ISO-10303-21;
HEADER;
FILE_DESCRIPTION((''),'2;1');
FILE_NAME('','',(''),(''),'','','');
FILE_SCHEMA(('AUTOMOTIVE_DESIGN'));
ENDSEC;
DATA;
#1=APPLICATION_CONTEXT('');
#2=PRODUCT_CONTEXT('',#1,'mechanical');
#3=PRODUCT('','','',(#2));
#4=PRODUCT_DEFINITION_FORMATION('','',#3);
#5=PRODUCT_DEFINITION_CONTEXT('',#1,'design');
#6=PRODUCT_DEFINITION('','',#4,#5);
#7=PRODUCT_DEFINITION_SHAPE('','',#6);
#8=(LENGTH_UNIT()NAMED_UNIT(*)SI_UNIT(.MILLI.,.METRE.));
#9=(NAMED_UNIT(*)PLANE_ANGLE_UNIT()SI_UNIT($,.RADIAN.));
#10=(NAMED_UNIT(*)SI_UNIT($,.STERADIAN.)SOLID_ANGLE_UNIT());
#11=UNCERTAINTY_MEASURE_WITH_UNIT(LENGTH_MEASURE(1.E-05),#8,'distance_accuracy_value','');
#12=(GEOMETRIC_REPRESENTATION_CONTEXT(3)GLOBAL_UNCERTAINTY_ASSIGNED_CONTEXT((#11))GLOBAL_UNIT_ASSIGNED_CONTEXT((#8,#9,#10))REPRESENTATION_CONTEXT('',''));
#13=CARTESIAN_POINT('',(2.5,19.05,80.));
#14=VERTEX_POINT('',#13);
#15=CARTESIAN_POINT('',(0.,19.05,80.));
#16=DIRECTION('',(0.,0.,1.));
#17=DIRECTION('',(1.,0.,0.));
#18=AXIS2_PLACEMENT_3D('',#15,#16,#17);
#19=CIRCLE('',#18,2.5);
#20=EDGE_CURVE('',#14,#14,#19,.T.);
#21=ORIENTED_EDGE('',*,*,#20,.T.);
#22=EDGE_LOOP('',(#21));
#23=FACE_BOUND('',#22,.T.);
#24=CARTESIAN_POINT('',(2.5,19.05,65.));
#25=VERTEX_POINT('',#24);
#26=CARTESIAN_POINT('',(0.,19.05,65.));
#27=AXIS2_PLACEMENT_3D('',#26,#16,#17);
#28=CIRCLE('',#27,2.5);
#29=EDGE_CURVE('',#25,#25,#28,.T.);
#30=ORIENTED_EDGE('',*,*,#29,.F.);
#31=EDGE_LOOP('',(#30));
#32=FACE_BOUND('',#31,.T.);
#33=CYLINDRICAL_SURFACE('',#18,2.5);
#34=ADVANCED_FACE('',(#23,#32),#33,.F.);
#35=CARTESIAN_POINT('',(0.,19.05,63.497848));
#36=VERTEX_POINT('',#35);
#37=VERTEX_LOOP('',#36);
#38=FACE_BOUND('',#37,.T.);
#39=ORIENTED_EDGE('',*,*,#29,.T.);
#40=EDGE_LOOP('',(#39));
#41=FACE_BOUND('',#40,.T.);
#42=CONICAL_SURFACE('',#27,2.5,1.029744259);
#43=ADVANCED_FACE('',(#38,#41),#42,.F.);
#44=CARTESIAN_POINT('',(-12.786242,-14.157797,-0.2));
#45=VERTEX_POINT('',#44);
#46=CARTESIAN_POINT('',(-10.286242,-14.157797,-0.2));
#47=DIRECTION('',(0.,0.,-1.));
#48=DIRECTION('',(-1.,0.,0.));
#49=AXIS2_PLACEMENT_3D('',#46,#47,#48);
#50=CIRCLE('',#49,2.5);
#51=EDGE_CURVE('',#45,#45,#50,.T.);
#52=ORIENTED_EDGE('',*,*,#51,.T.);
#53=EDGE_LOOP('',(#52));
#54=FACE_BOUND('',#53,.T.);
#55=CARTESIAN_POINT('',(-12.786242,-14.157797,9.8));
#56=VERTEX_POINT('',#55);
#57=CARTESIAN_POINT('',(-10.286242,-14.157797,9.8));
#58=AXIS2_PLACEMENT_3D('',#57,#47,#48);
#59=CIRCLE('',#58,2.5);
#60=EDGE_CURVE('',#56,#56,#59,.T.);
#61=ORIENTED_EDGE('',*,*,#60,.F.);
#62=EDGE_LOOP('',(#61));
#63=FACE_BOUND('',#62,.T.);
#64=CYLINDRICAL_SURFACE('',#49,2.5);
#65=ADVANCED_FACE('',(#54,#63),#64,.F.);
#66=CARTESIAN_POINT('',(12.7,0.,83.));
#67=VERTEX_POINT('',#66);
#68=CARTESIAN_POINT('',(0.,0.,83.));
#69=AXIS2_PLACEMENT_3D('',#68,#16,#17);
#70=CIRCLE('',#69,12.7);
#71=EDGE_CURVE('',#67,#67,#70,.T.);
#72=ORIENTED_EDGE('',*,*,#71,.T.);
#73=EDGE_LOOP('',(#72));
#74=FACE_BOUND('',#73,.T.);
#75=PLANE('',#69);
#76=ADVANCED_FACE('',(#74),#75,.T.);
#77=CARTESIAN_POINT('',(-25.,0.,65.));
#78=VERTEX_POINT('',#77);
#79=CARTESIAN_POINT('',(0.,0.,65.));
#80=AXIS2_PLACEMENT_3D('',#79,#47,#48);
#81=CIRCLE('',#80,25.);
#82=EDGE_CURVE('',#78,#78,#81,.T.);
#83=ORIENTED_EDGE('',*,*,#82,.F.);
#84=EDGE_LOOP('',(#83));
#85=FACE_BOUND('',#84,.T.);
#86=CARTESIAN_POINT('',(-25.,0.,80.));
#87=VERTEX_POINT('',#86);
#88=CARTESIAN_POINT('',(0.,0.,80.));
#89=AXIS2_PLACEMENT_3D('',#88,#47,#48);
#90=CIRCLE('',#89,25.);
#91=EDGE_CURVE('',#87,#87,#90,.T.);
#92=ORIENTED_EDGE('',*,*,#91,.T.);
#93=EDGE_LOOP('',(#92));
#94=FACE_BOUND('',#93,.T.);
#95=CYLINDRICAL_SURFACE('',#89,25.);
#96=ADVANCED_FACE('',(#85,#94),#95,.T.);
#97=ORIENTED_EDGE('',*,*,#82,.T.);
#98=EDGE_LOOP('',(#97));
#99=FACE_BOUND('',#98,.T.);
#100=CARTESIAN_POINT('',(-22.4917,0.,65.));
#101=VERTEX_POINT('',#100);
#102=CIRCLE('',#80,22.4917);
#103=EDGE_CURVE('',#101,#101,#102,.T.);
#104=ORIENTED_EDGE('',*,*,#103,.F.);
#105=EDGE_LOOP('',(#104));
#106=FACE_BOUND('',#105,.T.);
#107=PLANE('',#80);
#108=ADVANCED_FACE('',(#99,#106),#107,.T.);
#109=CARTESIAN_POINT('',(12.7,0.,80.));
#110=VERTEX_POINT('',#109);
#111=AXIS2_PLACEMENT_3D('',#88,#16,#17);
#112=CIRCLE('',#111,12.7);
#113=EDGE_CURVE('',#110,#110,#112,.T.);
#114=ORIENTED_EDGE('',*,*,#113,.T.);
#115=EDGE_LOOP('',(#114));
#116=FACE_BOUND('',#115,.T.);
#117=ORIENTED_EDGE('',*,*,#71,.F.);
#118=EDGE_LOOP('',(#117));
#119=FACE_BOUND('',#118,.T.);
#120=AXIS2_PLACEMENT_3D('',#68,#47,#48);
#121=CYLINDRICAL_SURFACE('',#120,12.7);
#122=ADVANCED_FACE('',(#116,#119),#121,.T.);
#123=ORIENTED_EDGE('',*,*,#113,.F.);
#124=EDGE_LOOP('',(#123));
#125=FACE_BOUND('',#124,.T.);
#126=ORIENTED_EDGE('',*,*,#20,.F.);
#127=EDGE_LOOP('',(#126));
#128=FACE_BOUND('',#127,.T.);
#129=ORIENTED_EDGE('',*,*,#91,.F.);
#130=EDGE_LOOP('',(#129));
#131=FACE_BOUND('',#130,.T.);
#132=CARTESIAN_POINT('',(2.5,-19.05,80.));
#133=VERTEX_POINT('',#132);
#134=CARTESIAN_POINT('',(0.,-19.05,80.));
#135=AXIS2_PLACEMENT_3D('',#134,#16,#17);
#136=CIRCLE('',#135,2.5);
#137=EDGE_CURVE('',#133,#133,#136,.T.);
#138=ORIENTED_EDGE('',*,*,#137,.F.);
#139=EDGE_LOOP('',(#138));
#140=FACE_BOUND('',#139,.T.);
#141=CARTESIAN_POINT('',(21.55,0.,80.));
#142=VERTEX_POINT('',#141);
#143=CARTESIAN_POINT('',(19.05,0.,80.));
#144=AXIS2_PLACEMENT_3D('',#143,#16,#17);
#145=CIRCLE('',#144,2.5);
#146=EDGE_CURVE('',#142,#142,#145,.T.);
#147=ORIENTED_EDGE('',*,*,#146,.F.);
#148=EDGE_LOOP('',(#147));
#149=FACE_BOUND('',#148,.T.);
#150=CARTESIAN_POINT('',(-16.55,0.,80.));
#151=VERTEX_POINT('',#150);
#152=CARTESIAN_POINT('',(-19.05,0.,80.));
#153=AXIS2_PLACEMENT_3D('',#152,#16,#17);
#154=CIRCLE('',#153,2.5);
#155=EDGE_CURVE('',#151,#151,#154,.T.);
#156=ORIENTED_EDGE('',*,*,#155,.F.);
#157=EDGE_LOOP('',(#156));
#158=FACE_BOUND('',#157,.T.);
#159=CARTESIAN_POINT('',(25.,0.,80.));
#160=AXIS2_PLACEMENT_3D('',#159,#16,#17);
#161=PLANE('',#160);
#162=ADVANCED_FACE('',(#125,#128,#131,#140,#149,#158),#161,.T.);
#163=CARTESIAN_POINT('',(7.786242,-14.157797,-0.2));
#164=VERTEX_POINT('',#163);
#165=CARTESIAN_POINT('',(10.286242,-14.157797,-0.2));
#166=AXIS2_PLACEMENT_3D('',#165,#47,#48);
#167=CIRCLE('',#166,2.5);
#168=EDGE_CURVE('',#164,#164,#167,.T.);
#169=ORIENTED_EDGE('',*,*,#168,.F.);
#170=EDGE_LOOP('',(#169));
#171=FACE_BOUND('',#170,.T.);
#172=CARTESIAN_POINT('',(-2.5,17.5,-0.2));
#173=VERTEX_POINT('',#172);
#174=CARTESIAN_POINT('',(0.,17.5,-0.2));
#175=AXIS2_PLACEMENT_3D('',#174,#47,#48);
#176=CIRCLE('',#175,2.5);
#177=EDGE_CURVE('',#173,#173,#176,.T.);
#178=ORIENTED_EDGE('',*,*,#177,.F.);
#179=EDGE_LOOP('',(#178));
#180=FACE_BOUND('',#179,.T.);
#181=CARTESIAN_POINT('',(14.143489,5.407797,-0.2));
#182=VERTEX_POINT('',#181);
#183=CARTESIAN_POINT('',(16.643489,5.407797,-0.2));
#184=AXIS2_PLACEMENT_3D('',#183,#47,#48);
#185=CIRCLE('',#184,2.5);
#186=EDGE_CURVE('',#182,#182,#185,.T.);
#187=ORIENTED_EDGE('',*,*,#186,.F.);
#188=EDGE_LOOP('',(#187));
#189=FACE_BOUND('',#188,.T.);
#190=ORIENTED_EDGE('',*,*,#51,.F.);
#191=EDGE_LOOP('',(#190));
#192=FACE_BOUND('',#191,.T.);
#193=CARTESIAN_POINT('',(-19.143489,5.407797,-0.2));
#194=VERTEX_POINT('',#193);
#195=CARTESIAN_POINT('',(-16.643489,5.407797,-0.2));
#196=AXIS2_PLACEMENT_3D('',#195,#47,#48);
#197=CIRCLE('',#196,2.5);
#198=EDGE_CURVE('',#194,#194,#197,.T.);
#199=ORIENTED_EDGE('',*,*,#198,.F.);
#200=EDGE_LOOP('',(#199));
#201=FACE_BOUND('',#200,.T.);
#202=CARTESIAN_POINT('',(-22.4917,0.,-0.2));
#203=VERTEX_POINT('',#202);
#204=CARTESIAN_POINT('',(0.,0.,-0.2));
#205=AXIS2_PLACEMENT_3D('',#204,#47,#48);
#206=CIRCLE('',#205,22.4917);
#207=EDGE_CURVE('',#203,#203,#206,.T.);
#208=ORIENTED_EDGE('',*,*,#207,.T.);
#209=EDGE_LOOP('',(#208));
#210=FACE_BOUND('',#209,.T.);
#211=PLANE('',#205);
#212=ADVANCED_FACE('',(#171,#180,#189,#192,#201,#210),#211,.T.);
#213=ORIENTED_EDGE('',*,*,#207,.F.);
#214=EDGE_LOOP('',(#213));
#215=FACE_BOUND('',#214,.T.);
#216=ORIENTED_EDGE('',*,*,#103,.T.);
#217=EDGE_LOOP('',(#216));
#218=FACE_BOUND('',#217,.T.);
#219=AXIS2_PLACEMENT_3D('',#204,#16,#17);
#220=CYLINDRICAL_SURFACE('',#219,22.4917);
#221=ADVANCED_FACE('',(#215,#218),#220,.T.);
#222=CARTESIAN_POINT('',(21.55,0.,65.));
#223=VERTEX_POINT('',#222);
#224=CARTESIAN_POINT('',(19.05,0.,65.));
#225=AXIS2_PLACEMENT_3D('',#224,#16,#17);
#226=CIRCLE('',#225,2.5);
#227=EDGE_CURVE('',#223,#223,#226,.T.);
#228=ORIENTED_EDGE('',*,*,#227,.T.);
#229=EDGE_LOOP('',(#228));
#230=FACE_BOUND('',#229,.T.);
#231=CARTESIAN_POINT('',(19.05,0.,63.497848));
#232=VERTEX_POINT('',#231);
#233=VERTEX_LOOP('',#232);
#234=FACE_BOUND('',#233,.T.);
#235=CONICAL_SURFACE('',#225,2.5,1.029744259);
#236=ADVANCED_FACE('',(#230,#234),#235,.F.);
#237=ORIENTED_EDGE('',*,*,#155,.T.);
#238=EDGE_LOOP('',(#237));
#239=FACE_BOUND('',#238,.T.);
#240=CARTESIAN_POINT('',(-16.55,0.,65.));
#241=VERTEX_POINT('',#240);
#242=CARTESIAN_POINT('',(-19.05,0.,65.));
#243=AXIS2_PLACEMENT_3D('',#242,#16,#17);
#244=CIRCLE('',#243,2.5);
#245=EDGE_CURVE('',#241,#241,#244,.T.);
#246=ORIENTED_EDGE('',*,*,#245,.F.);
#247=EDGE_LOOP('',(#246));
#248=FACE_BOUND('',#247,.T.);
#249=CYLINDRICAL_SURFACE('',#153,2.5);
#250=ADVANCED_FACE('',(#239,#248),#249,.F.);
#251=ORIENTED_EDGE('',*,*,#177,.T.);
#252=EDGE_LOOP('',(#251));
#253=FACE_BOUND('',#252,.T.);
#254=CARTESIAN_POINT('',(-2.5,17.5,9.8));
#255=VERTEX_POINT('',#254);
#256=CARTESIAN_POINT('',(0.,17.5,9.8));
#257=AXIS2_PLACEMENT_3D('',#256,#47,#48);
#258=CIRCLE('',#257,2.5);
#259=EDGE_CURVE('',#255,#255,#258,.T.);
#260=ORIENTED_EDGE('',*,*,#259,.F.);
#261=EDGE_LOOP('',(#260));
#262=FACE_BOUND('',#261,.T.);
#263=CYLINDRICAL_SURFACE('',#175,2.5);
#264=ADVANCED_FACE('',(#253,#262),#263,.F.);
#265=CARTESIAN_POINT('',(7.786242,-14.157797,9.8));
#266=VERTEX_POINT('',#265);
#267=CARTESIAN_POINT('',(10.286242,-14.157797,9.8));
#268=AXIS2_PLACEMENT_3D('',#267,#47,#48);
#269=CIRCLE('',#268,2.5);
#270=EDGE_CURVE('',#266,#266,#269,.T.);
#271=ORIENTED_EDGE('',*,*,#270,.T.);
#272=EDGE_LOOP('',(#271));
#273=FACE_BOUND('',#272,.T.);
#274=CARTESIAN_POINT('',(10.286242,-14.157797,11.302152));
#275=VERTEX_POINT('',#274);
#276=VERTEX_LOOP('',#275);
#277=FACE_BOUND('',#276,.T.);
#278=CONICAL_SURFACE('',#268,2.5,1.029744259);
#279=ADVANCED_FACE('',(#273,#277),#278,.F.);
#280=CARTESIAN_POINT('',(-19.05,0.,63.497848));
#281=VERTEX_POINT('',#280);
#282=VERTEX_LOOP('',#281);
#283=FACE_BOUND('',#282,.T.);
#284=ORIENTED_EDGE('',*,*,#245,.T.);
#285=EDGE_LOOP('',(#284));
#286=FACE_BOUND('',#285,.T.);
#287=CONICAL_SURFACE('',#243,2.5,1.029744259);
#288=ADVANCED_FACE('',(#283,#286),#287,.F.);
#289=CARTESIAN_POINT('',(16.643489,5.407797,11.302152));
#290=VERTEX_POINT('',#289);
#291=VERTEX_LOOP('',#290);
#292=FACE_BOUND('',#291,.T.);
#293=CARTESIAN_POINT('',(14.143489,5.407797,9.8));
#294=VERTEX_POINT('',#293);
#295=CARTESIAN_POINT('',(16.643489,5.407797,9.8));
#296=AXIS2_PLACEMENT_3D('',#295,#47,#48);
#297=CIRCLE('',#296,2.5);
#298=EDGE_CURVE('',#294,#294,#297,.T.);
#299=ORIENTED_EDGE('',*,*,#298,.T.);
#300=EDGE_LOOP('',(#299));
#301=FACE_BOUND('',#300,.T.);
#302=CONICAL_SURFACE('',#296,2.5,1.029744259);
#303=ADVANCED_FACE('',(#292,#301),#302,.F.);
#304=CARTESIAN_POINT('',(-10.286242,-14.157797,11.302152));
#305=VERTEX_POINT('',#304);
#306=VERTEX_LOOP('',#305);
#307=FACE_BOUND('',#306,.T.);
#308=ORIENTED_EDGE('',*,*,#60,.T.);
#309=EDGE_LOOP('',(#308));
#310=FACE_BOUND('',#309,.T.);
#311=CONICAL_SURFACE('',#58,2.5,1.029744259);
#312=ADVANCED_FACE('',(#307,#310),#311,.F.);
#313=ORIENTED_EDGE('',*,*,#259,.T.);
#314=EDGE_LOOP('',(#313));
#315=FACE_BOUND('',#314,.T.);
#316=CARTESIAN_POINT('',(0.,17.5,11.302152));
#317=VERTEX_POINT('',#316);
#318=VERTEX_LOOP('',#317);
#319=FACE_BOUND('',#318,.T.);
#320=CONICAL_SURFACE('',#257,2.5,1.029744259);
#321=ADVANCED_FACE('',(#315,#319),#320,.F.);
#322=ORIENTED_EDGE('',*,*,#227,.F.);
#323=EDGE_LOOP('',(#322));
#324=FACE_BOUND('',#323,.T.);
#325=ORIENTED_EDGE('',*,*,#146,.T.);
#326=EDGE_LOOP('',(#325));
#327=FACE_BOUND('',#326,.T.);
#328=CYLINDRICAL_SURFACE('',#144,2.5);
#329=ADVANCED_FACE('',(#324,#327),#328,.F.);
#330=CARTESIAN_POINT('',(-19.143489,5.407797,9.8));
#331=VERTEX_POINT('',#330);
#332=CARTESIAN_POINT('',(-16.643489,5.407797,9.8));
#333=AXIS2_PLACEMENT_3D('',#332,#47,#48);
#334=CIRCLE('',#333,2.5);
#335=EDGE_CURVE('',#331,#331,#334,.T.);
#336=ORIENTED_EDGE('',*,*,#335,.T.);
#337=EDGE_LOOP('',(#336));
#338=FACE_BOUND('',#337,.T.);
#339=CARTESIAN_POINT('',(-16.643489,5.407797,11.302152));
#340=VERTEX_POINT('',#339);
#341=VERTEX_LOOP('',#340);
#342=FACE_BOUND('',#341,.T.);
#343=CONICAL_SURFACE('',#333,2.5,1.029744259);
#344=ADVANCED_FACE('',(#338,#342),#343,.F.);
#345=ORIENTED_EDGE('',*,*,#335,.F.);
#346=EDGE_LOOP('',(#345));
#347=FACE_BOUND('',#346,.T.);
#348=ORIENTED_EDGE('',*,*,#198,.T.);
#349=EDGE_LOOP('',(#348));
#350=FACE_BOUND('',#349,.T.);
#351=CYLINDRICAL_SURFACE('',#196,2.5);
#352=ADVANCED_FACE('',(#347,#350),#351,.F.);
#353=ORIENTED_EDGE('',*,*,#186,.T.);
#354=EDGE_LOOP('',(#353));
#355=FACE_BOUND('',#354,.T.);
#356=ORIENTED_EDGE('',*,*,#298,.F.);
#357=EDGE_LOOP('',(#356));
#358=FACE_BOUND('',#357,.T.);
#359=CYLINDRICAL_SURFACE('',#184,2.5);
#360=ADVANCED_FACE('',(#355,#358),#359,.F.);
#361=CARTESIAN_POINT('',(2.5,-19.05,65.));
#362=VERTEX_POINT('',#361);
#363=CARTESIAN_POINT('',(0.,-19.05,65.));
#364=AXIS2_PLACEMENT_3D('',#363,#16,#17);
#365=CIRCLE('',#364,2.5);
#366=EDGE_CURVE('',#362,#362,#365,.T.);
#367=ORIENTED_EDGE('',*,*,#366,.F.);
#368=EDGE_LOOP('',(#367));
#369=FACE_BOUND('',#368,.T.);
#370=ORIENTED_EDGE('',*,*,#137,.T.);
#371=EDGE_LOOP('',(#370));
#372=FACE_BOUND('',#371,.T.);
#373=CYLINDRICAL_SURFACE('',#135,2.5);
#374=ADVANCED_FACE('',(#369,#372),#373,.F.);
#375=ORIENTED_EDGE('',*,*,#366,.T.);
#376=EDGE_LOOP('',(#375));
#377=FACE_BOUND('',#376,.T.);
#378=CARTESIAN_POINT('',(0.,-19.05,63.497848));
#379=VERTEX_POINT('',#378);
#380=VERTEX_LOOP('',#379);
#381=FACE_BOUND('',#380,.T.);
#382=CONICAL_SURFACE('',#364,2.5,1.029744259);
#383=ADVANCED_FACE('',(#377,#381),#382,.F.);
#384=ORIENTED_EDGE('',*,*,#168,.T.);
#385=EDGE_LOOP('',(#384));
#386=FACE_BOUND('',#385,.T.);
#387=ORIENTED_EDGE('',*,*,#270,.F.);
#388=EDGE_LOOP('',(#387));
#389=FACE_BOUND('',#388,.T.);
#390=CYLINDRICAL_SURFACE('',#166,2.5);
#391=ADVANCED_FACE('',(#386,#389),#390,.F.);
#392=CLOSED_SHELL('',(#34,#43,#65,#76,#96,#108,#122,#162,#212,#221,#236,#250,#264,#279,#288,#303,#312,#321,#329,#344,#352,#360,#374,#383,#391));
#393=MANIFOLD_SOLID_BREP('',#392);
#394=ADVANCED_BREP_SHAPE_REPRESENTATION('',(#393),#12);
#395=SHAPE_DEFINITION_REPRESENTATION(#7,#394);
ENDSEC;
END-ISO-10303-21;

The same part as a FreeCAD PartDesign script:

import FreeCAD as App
import Part
import Sketcher

V = App.Vector
Q = App.Units.Quantity


def add_polygon(sketch, points):
    """Adds a closed chain of lines whose ends are joined by coincident constraints."""
    first, n = sketch.GeometryCount, len(points)
    for a, b in zip(points, points[1:] + points[:1]):
        sketch.addGeometry(Part.LineSegment(App.Vector(*a, 0), App.Vector(*b, 0)), False)
    for i in range(n):
        sketch.addConstraint(Sketcher.Constraint("Coincident", first + i, 2, first + (i + 1) % n, 1))

doc = App.newDocument("Part")
body = doc.addObject("PartDesign::Body", "Body")

# Sketch on XZ plane
sketch1 = body.newObject("Sketcher::SketchObject", "Sketch")
sketch1.AttachmentSupport = (doc.getObject("XZ_Plane"), [""])
sketch1.MapMode = "FlatFace"
add_polygon(sketch1, [(0, 80), (0, 65), (25, 65), (25, 80)])  # lines 0-3
sketch1.addConstraint(Sketcher.Constraint("Vertical", 0))
sketch1.addConstraint(Sketcher.Constraint("Horizontal", 1))
sketch1.addConstraint(Sketcher.Constraint("Vertical", 2))
sketch1.addConstraint(Sketcher.Constraint("Horizontal", 3))
sketch1.addConstraint(Sketcher.Constraint("PointOnObject", 0, 2, -2))
sketch1.addConstraint(Sketcher.Constraint("DistanceX", 1, 1, 1, 2, Q("25 mm")))
sketch1.addConstraint(Sketcher.Constraint("DistanceY", 0, 2, 0, 1, Q("15 mm")))
sketch1.addConstraint(Sketcher.Constraint("DistanceY", -1, 1, 0, 2, Q("65 mm")))
revolution = body.newObject("PartDesign::Revolution", "Revolution")
revolution.Profile = sketch1
revolution.ReferenceAxis = (sketch1, ["V_Axis"])
revolution.Angle = 360

# Sketch on XY plane
sketch2 = body.newObject("Sketcher::SketchObject", "Sketch001")
sketch2.AttachmentSupport = (doc.getObject("XY_Plane"), [""])
sketch2.MapMode = "FlatFace"
sketch2.AttachmentOffset = App.Placement(V(0, 0, 80), App.Rotation())
sketch2.addGeometry(Part.Circle(V(0, 0, 0), V(0, 0, 1), 13), False)
sketch2.addConstraint(Sketcher.Constraint("Coincident", 0, 3, -1, 1))
sketch2.addConstraint(Sketcher.Constraint("Diameter", 0, Q("25.4 mm")))
pad1 = body.newObject("PartDesign::Pad", "Pad")
pad1.Profile = sketch2
pad1.Length = 3

# Sketch on XY plane
sketch3 = body.newObject("Sketcher::SketchObject", "Sketch002")
sketch3.AttachmentSupport = (doc.getObject("XY_Plane"), [""])
sketch3.MapMode = "FlatFace"
sketch3.AttachmentOffset = App.Placement(V(0, 0, 65), App.Rotation())
sketch3.addGeometry(Part.Circle(V(0, 0, 0), V(0, 0, 1), 22), False)
sketch3.addConstraint(Sketcher.Constraint("Coincident", 0, 3, -1, 1))
sketch3.addConstraint(Sketcher.Constraint("Diameter", 0, Q("44.9834 mm")))
pad2 = body.newObject("PartDesign::Pad", "Pad001")
pad2.Profile = sketch3
pad2.Length = 65.2
pad2.Reversed = True

# Sketch on XY plane
sketch4 = body.newObject("Sketcher::SketchObject", "Sketch003")
sketch4.AttachmentSupport = (doc.getObject("XY_Plane"), [""])
sketch4.MapMode = "FlatFace"
sketch4.AttachmentOffset = App.Placement(V(0, 0, -0.2), App.Rotation())
sketch4.addGeometry(Part.Circle(V(0, 17.5, 0), V(0, 0, 1), 2.5), False)
sketch4.addGeometry(Part.Circle(V(-16.6, 5.4, 0), V(0, 0, 1), 2.5), False)
sketch4.addGeometry(Part.Circle(V(-10.3, -14.2, 0), V(0, 0, 1), 2.5), False)
sketch4.addGeometry(Part.Circle(V(10.3, -14.2, 0), V(0, 0, 1), 2.5), False)
sketch4.addGeometry(Part.Circle(V(16.6, 5.4, 0), V(0, 0, 1), 2.5), False)
sketch4.addConstraint(Sketcher.Constraint("Equal", 0, 1))
sketch4.addConstraint(Sketcher.Constraint("Equal", 1, 2))
sketch4.addConstraint(Sketcher.Constraint("Equal", 2, 3))
sketch4.addConstraint(Sketcher.Constraint("Equal", 3, 4))
sketch4.addConstraint(Sketcher.Constraint("Symmetric", 2, 3, 3, 3, -2))
sketch4.addConstraint(Sketcher.Constraint("Symmetric", 1, 3, 4, 3, -2))
sketch4.addConstraint(Sketcher.Constraint("PointOnObject", 0, 3, -2))
sketch4.addConstraint(Sketcher.Constraint("Diameter", 0, Q("5 mm")))
sketch4.addConstraint(Sketcher.Constraint("DistanceY", -1, 1, 0, 3, Q("17.5 mm")))
sketch4.addConstraint(Sketcher.Constraint("DistanceX", 1, 3, -1, 1, Q("16.643489 mm")))
sketch4.addConstraint(Sketcher.Constraint("DistanceX", 2, 3, -1, 1, Q("10.286242 mm")))
sketch4.addConstraint(Sketcher.Constraint("DistanceY", -1, 1, 1, 3, Q("5.407797 mm")))
sketch4.addConstraint(Sketcher.Constraint("DistanceY", 2, 3, -1, 1, Q("14.157797 mm")))
doc.recompute()
hole = body.newObject("PartDesign::Hole", "Hole")
hole.Profile = sketch4
hole.ThreadType = "None"
hole.Diameter = 5
hole.DepthType = "Dimension"
hole.Depth = 10
hole.DrillPoint = "Angled"
hole.DrillPointAngle = 118
hole.Reversed = True

# Sketch on XY plane
sketch5 = body.newObject("Sketcher::SketchObject", "Sketch004")
sketch5.AttachmentSupport = (doc.getObject("XY_Plane"), [""])
sketch5.MapMode = "FlatFace"
sketch5.AttachmentOffset = App.Placement(V(0, 0, 80), App.Rotation())
sketch5.addGeometry(Part.Circle(V(-19.1, 0, 0), V(0, 0, 1), 2.5), False)
sketch5.addGeometry(Part.Circle(V(0, -19.1, 0), V(0, 0, 1), 2.5), False)
sketch5.addGeometry(Part.Circle(V(19.1, 0, 0), V(0, 0, 1), 2.5), False)
sketch5.addGeometry(Part.Circle(V(0, 19.1, 0), V(0, 0, 1), 2.5), False)
sketch5.addConstraint(Sketcher.Constraint("Equal", 0, 1))
sketch5.addConstraint(Sketcher.Constraint("Equal", 1, 2))
sketch5.addConstraint(Sketcher.Constraint("Equal", 2, 3))
sketch5.addConstraint(Sketcher.Constraint("Symmetric", 0, 3, 2, 3, -1, 1))
sketch5.addConstraint(Sketcher.Constraint("Symmetric", 1, 3, 3, 3, -1, 1))
sketch5.addConstraint(Sketcher.Constraint("PointOnObject", 0, 3, -1))
sketch5.addConstraint(Sketcher.Constraint("PointOnObject", 1, 3, -2))
sketch5.addConstraint(Sketcher.Constraint("Diameter", 0, Q("5 mm")))
sketch5.addConstraint(Sketcher.Constraint("DistanceX", 0, 3, 2, 3, Q("38.1 mm")))
sketch5.addConstraint(Sketcher.Constraint("DistanceY", 1, 3, 3, 3, Q("38.1 mm")))
doc.recompute()
hole2 = body.newObject("PartDesign::Hole", "Hole001")
hole2.Profile = sketch5
hole2.ThreadType = "None"
hole2.Diameter = 5
hole2.DepthType = "Dimension"
hole2.Depth = 15
hole2.DrillPoint = "Angled"
hole2.DrillPointAngle = 118

doc.recompute()
